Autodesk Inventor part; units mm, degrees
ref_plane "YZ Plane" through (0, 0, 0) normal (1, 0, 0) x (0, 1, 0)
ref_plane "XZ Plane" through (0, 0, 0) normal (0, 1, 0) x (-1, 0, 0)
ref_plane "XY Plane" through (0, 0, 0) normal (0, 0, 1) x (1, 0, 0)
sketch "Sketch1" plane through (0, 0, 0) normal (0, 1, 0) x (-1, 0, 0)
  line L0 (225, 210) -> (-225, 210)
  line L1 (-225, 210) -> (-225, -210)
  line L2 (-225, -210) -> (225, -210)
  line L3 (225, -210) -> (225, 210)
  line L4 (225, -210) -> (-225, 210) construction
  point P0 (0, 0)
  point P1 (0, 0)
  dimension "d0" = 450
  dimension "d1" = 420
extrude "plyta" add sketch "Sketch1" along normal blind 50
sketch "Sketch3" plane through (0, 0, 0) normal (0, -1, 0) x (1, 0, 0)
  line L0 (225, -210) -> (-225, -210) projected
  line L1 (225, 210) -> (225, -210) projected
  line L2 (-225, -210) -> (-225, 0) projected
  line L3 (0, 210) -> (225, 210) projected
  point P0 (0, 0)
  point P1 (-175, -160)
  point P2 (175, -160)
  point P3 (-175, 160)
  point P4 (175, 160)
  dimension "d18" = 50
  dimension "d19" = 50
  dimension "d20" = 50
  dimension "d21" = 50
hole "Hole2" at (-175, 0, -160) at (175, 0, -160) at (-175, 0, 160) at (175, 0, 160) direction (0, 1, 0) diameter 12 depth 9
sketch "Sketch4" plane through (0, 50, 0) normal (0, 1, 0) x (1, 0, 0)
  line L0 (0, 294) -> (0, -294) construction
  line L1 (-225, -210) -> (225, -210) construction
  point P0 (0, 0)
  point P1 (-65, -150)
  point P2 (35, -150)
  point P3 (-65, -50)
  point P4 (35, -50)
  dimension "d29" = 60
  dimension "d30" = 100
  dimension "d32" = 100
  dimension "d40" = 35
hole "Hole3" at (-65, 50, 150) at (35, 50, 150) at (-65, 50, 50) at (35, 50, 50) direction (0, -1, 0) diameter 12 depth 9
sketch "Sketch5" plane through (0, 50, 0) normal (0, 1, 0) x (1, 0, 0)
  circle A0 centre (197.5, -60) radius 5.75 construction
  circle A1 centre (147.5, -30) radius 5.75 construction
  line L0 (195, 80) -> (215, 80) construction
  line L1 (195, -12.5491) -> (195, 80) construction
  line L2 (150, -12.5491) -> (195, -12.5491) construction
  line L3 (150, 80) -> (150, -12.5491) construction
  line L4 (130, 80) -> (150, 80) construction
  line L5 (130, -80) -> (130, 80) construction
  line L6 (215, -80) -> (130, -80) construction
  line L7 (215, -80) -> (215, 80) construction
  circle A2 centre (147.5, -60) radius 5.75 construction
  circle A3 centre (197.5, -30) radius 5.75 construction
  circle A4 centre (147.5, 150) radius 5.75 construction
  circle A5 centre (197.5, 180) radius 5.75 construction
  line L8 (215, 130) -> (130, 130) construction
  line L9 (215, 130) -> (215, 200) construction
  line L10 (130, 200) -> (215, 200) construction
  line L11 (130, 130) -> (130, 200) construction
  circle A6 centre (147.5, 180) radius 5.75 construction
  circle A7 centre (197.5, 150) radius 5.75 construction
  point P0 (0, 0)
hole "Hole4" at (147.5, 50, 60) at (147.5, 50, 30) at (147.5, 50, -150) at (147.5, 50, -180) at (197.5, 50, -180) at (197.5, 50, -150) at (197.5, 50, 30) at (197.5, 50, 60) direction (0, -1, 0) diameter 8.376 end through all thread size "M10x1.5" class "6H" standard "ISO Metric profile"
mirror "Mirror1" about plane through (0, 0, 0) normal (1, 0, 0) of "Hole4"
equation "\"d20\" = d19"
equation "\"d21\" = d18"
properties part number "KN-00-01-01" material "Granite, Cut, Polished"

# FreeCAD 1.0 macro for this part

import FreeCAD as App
import Part
import Sketcher

V = App.Vector


def add_polygon(sketch, points):
    """Adds a closed chain of lines whose ends are joined by coincident constraints."""
    first, n = sketch.GeometryCount, len(points)
    for a, b in zip(points, points[1:] + points[:1]):
        sketch.addGeometry(Part.LineSegment(App.Vector(*a, 0), App.Vector(*b, 0)), False)
    for i in range(n):
        sketch.addConstraint(Sketcher.Constraint("Coincident", first + i, 2, first + (i + 1) % n, 1))

doc = App.newDocument("Part")
body = doc.addObject("PartDesign::Body", "Body")

sketch1 = body.newObject("Sketcher::SketchObject", "Sketch")
sketch1.AttachmentSupport = (doc.getObject("XZ_Plane"), [""])
sketch1.MapMode = "FlatFace"
add_polygon(sketch1, [(-225, -210), (-225, 210), (225, 210), (225, -210)])
sketch1.addConstraint(Sketcher.Constraint("Vertical", 0))
sketch1.addConstraint(Sketcher.Constraint("Horizontal", 1))
sketch1.addConstraint(Sketcher.Constraint("Vertical", 2))
sketch1.addConstraint(Sketcher.Constraint("Horizontal", 3))
sketch1.addConstraint(Sketcher.Constraint("Symmetric", 0, 2, 2, 2, -1, 1))
sketch1.addConstraint(Sketcher.Constraint("DistanceX", 1, 1, 1, 2, 450.0))
sketch1.addConstraint(Sketcher.Constraint("DistanceY", 0, 1, 0, 2, 420.0))
pad1 = body.newObject("PartDesign::Pad", "Pad")
pad1.Profile = sketch1
pad1.Length = 50
pad1.Reversed = True

sketch2 = body.newObject("Sketcher::SketchObject", "Sketch001")
sketch2.AttachmentSupport = (doc.getObject("XZ_Plane"), [""])
sketch2.MapMode = "FlatFace"
sketch2.addGeometry(Part.Circle(V(-175, -160, 0), V(0, 0, 1), 6), False)
sketch2.addGeometry(Part.Circle(V(175, -160, 0), V(0, 0, 1), 6), False)
sketch2.addGeometry(Part.Circle(V(-175, 160, 0), V(0, 0, 1), 6), False)
sketch2.addGeometry(Part.Circle(V(175, 160, 0), V(0, 0, 1), 6), False)
sketch2.addConstraint(Sketcher.Constraint("Equal", 0, 1))
sketch2.addConstraint(Sketcher.Constraint("Equal", 1, 2))
sketch2.addConstraint(Sketcher.Constraint("Equal", 2, 3))
sketch2.addConstraint(Sketcher.Constraint("Symmetric", 1, 3, 2, 3, -1, 1))
sketch2.addConstraint(Sketcher.Constraint("Symmetric", 0, 3, 3, 3, -1, 1))
sketch2.addConstraint(Sketcher.Constraint("Symmetric", 0, 3, 1, 3, -2))
sketch2.addConstraint(Sketcher.Constraint("Diameter", 0, 12.0))
sketch2.addConstraint(Sketcher.Constraint("DistanceX", 0, 3, -1, 1, 175.0))
sketch2.addConstraint(Sketcher.Constraint("DistanceY", 0, 3, -1, 1, 160.0))
doc.recompute()
hole = body.newObject("PartDesign::Hole", "Hole")
hole.Profile = sketch2
hole.ThreadType = "None"
hole.Diameter = 12
hole.DepthType = "Dimension"
hole.Depth = 9
hole.DrillPoint = "Flat"

sketch3 = body.newObject("Sketcher::SketchObject", "Sketch002")
sketch3.AttachmentSupport = (doc.getObject("XZ_Plane"), [""])
sketch3.MapMode = "FlatFace"
sketch3.AttachmentOffset = App.Placement(V(0, 0, -50), App.Rotation())
sketch3.addGeometry(Part.Circle(V(-65, 150, 0), V(0, 0, 1), 6), False)
sketch3.addGeometry(Part.Circle(V(35, 150, 0), V(0, 0, 1), 6), False)
sketch3.addGeometry(Part.Circle(V(-65, 50, 0), V(0, 0, 1), 6), False)
sketch3.addGeometry(Part.Circle(V(35, 50, 0), V(0, 0, 1), 6), False)
sketch3.addConstraint(Sketcher.Constraint("Equal", 0, 1))
sketch3.addConstraint(Sketcher.Constraint("Equal", 1, 2))
sketch3.addConstraint(Sketcher.Constraint("Equal", 2, 3))
sketch3.addConstraint(Sketcher.Constraint("Horizontal", 0, 3, 1, 3))
sketch3.addConstraint(Sketcher.Constraint("Horizontal", 2, 3, 3, 3))
sketch3.addConstraint(Sketcher.Constraint("Vertical", 0, 3, 2, 3))
sketch3.addConstraint(Sketcher.Constraint("Vertical", 1, 3, 3, 3))
sketch3.addConstraint(Sketcher.Constraint("Diameter", 0, 12.0))
sketch3.addConstraint(Sketcher.Constraint("DistanceX", 0, 3, -1, 1, 65.0))
sketch3.addConstraint(Sketcher.Constraint("DistanceY", -1, 1, 0, 3, 150.0))
sketch3.addConstraint(Sketcher.Constraint("DistanceX", -1, 1, 1, 3, 35.0))
sketch3.addConstraint(Sketcher.Constraint("DistanceY", -1, 1, 2, 3, 50.0))
doc.recompute()
hole2 = body.newObject("PartDesign::Hole", "Hole001")
hole2.Profile = sketch3
hole2.ThreadType = "None"
hole2.Diameter = 12
hole2.DepthType = "Dimension"
hole2.Depth = 9
hole2.DrillPoint = "Flat"
hole2.Reversed = True

sketch4 = body.newObject("Sketcher::SketchObject", "Sketch003")
sketch4.AttachmentSupport = (doc.getObject("XZ_Plane"), [""])
sketch4.MapMode = "FlatFace"
sketch4.AttachmentOffset = App.Placement(V(0, 0, -50), App.Rotation())
sketch4.addGeometry(Part.Circle(V(147.5, 60, 0), V(0, 0, 1), 4.2), False)
sketch4.addGeometry(Part.Circle(V(147.5, 30, 0), V(0, 0, 1), 4.2), False)
sketch4.addGeometry(Part.Circle(V(147.5, -150, 0), V(0, 0, 1), 4.2), False)
sketch4.addGeometry(Part.Circle(V(147.5, -180, 0), V(0, 0, 1), 4.2), False)
sketch4.addGeometry(Part.Circle(V(197.5, -180, 0), V(0, 0, 1), 4.2), False)
sketch4.addGeometry(Part.Circle(V(197.5, -150, 0), V(0, 0, 1), 4.2), False)
sketch4.addGeometry(Part.Circle(V(197.5, 30, 0), V(0, 0, 1), 4.2), False)
sketch4.addGeometry(Part.Circle(V(197.5, 60, 0), V(0, 0, 1), 4.2), False)
sketch4.addConstraint(Sketcher.Constraint("Equal", 0, 1))
sketch4.addConstraint(Sketcher.Constraint("Equal", 1, 2))
sketch4.addConstraint(Sketcher.Constraint("Equal", 2, 3))
sketch4.addConstraint(Sketcher.Constraint("Equal", 3, 4))
sketch4.addConstraint(Sketcher.Constraint("Equal", 4, 5))
sketch4.addConstraint(Sketcher.Constraint("Equal", 5, 6))
sketch4.addConstraint(Sketcher.Constraint("Equal", 6, 7))
sketch4.addConstraint(Sketcher.Constraint("Horizontal", 3, 3, 4, 3))
sketch4.addConstraint(Sketcher.Constraint("Horizontal", 2, 3, 5, 3))
sketch4.addConstraint(Sketcher.Constraint("Horizontal", 1, 3, 6, 3))
sketch4.addConstraint(Sketcher.Constraint("Horizontal", 0, 3, 7, 3))
sketch4.addConstraint(Sketcher.Constraint("Vertical", 0, 3, 1, 3))
sketch4.addConstraint(Sketcher.Constraint("Vertical", 1, 3, 2, 3))
sketch4.addConstraint(Sketcher.Constraint("Vertical", 2, 3, 3, 3))
sketch4.addConstraint(Sketcher.Constraint("Vertical", 4, 3, 5, 3))
sketch4.addConstraint(Sketcher.Constraint("Vertical", 5, 3, 6, 3))
sketch4.addConstraint(Sketcher.Constraint("Vertical", 6, 3, 7, 3))
sketch4.addConstraint(Sketcher.Constraint("Diameter", 0, 8.376))
sketch4.addConstraint(Sketcher.Constraint("DistanceY", -1, 1, 0, 3, 60.0))
sketch4.addConstraint(Sketcher.Constraint("DistanceY", -1, 1, 1, 3, 30.0))
sketch4.addConstraint(Sketcher.Constraint("DistanceY", 2, 3, -1, 1, 150.0))
sketch4.addConstraint(Sketcher.Constraint("DistanceY", 3, 3, -1, 1, 180.0))
sketch4.addConstraint(Sketcher.Constraint("DistanceX", 3, 3, 4, 3, 50.0))
sketch4.addConstraint(Sketcher.Constraint("DistanceX", -1, 1, 0, 3, 147.5))
doc.recompute()
hole3 = body.newObject("PartDesign::Hole", "Hole002")
hole3.Profile = sketch4
hole3.ThreadType = "None"
hole3.Diameter = 8.376
hole3.DepthType = "ThroughAll"
hole3.Reversed = True
doc.recompute()

mirrored = body.newObject("PartDesign::Mirrored", "Mirrored")
mirrored.Originals = [hole3]
mirrored.MirrorPlane = (doc.getObject("YZ_Plane"), [""])
body.Tip = mirrored

doc.recompute()
